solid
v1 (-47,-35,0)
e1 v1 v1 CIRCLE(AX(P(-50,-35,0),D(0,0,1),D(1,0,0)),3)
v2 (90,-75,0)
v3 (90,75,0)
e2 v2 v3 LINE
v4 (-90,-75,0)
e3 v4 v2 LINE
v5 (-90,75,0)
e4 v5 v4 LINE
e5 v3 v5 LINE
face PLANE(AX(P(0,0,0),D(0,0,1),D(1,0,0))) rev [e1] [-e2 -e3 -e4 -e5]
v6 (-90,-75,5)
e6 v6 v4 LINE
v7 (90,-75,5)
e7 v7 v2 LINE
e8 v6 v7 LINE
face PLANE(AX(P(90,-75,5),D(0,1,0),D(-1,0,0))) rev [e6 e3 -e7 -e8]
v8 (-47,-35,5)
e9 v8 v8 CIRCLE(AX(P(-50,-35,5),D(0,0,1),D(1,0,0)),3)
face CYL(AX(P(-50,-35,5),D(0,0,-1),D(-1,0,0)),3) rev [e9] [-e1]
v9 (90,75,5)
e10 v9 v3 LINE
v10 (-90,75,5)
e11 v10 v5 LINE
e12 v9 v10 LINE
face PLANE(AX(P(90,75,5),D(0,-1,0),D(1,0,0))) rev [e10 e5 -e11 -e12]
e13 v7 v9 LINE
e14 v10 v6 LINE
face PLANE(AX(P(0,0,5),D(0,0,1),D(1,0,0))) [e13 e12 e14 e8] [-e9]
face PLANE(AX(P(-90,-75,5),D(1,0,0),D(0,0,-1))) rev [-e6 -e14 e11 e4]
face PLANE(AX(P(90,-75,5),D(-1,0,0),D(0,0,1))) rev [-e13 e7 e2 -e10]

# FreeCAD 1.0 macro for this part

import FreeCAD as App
import Part
import Sketcher
from FreeCAD import Vector


def add_polygon(sketch, points):
    """Adds a closed chain of lines whose ends are joined by coincident constraints."""
    first, n = sketch.GeometryCount, len(points)
    for a, b in zip(points, points[1:] + points[:1]):
        sketch.addGeometry(Part.LineSegment(App.Vector(*a, 0), App.Vector(*b, 0)), False)
    for i in range(n):
        sketch.addConstraint(Sketcher.Constraint("Coincident", first + i, 2, first + (i + 1) % n, 1))

doc = App.newDocument("Part")
params = doc.addObject("Spreadsheet::Sheet", "Params")
for row, (alias, value) in enumerate([
    ("sketch1_diameter", "6 mm"),
    ("sketch1_width", "180 mm"),
    ("sketch1_height", "150 mm"),
    ("pad1_length", "5 mm"),
], start=1):
    params.set(f"A{row}", alias)
    params.set(f"B{row}", "=" + value)
    params.setAlias(f"B{row}", alias)

body = doc.addObject("PartDesign::Body", "Body")

sketch1 = doc.addObject("Sketcher::SketchObject", "Sketch")
body.addObject(sketch1)
sketch1.AttachmentSupport = (doc.XY_Plane, [""])
sketch1.MapMode = "FlatFace"
add_polygon(sketch1, [(-90, 75), (-90, -75), (90, -75), (90, 75)])
sketch1.addGeometry(Part.Circle(Vector(-50, -35, 0), Vector(0, 0, 1), 3), False)
sketch1.addConstraint([
    Sketcher.Constraint("Vertical", 0),
    Sketcher.Constraint("Horizontal", 1),
    Sketcher.Constraint("Vertical", 2),
    Sketcher.Constraint("Horizontal", 3),
    Sketcher.Constraint("Symmetric", 0, 2, 2, 2, -1, 1),
    Sketcher.Constraint("Diameter", 4, 6.0),
    Sketcher.Constraint("DistanceX", 1, 1, 1, 2, 180.0),
    Sketcher.Constraint("DistanceY", 0, 2, 0, 1, 150.0),
    Sketcher.Constraint("DistanceX", 4, 3, -1, 1, 50.0),
    Sketcher.Constraint("DistanceY", 4, 3, -1, 1, 35.0),
])
sketch1.setExpression("Constraints[9]", "Params.sketch1_diameter")
sketch1.setExpression("Constraints[10]", "Params.sketch1_width")
sketch1.setExpression("Constraints[11]", "Params.sketch1_height")
pad1 = doc.addObject("PartDesign::Pad", "Pad")
body.addObject(pad1)
pad1.Profile = sketch1
pad1.setExpression("Length", "Params.pad1_length")

doc.recompute()
